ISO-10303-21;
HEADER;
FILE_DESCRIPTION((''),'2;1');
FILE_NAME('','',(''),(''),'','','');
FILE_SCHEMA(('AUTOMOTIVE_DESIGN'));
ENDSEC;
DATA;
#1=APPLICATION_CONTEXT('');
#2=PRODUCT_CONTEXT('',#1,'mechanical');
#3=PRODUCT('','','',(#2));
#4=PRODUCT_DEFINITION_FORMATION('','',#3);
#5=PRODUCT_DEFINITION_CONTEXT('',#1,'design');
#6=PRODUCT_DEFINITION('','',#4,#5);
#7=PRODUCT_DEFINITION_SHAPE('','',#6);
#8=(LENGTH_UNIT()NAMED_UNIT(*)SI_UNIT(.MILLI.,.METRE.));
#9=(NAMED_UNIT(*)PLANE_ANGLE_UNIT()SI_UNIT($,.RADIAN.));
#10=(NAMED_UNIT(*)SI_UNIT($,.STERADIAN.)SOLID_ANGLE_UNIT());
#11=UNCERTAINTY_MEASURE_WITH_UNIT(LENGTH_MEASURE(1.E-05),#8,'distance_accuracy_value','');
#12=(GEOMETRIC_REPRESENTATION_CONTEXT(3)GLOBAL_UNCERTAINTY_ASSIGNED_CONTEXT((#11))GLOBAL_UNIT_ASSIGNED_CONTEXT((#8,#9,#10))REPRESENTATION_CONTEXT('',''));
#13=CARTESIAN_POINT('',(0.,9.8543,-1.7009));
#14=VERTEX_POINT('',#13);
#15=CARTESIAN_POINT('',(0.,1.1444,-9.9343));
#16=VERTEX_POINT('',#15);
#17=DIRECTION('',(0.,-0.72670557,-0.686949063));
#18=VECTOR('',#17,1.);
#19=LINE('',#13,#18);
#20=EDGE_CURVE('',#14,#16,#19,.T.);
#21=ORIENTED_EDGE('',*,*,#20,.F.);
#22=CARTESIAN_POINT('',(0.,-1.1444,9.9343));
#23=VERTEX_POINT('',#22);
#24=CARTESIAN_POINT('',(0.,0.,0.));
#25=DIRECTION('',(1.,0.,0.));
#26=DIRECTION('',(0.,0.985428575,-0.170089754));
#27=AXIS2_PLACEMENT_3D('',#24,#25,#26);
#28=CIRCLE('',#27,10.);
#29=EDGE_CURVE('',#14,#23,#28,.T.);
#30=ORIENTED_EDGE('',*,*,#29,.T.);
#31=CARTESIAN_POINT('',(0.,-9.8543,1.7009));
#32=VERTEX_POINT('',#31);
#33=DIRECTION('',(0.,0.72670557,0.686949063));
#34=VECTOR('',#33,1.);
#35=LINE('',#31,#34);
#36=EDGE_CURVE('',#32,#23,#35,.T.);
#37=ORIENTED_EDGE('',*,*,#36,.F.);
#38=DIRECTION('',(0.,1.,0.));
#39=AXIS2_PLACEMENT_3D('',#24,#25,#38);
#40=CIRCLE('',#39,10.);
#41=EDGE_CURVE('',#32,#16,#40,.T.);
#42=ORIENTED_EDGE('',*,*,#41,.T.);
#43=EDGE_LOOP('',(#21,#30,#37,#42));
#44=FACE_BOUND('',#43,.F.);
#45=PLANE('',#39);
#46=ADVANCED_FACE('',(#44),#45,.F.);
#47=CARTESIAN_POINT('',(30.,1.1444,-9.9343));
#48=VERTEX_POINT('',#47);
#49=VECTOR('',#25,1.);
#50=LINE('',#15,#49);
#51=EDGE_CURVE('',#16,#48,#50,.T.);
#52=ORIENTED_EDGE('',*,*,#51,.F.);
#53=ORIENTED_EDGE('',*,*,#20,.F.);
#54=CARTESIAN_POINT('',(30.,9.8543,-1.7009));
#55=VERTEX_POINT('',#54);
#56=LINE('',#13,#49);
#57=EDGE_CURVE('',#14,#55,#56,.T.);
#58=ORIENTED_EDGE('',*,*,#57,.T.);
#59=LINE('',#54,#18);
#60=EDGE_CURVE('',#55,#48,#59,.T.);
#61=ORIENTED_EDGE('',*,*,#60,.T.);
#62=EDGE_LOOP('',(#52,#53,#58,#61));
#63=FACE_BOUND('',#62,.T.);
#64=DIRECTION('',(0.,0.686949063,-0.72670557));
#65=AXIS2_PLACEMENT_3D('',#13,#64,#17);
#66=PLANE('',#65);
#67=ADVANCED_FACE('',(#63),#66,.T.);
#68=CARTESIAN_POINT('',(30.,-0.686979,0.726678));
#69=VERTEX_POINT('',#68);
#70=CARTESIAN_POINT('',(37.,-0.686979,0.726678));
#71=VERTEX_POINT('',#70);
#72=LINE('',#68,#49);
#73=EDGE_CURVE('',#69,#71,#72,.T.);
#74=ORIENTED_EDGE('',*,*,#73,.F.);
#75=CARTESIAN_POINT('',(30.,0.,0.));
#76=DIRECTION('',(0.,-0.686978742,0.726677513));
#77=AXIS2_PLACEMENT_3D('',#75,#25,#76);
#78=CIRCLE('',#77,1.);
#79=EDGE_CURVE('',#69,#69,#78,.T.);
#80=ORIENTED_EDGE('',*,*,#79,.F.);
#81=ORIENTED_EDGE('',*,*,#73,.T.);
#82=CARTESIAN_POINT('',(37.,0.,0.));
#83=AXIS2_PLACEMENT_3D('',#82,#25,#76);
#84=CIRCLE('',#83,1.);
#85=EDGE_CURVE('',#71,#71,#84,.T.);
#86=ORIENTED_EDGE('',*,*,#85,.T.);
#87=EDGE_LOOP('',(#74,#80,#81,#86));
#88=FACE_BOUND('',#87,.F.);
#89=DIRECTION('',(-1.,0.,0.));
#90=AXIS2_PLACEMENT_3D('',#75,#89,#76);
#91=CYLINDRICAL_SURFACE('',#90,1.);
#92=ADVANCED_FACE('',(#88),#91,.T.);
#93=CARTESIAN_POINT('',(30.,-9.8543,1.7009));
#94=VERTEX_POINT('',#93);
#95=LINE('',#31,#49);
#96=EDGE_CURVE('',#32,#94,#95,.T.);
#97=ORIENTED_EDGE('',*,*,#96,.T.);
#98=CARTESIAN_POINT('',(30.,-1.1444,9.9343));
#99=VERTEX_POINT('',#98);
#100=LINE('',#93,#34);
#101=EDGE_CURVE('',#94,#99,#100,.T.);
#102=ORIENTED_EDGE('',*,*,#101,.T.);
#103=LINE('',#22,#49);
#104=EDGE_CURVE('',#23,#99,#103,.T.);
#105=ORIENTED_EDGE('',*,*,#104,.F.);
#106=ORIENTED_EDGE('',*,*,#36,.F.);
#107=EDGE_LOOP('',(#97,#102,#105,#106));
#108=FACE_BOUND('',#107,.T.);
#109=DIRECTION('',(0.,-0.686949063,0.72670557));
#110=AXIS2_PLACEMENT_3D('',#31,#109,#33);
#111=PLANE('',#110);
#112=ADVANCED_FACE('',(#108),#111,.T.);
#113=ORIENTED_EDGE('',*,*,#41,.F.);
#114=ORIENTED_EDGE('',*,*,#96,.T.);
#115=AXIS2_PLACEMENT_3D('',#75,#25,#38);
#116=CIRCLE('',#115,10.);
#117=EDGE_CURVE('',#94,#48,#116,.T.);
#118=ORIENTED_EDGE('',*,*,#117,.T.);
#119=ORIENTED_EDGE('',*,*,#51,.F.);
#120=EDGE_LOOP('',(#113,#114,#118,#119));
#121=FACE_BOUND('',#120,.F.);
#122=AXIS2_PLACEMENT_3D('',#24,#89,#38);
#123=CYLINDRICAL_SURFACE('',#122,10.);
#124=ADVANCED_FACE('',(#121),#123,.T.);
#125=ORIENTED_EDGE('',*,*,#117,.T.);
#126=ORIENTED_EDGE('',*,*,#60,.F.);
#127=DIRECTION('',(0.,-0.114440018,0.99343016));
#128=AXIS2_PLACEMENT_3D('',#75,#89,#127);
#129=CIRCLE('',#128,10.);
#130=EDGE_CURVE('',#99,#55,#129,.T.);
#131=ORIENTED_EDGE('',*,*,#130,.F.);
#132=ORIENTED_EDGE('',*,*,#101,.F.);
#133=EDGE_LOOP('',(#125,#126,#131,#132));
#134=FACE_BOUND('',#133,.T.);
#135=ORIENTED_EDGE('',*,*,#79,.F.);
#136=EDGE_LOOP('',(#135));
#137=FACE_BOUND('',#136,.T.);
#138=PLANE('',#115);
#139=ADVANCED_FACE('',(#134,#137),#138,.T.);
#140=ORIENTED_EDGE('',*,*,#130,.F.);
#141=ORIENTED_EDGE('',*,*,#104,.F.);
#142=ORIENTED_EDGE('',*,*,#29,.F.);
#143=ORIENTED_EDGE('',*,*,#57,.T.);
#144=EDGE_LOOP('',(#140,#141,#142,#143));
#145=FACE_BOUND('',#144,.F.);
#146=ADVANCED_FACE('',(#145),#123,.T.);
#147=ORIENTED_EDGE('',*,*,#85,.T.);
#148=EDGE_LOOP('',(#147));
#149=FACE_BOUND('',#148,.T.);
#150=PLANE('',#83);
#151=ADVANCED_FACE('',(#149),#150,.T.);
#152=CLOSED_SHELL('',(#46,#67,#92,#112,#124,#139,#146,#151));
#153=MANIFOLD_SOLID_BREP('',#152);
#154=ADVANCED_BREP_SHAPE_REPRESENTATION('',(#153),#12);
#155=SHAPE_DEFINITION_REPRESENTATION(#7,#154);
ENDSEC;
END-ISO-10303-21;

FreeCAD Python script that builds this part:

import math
import FreeCAD as App
import Part
import Sketcher

V = App.Vector
Q = App.Units.Quantity

doc = App.newDocument("Part")
body = doc.addObject("PartDesign::Body", "Body")

# Sketch on YZ plane
sketch1 = body.newObject("Sketcher::SketchObject", "Sketch")
sketch1.AttachmentSupport = (doc.getObject("YZ_Plane"), [""])
sketch1.MapMode = "FlatFace"
sketch1.addGeometry([
    Part.ArcOfCircle(Part.Circle(V(0, 0, 0), V(0, 0, 1), 10), math.radians(-9.793038), math.radians(96.571327)),
    Part.LineSegment(V(-1.1444, 9.9343, 0), V(-9.8543, 1.7009, 0)),
    Part.ArcOfCircle(Part.Circle(V(0, 0, 0), V(0, 0, 1), 10), math.radians(170.206962), math.radians(276.571327)),
    Part.LineSegment(V(1.1444, -9.9343, 0), V(9.8543, -1.7009, 0)),
], False)
sketch1.addConstraint([
    Sketcher.Constraint("Coincident", 0, 2, 1, 1),
    Sketcher.Constraint("Coincident", 1, 2, 2, 1),
    Sketcher.Constraint("Coincident", 2, 2, 3, 1),
    Sketcher.Constraint("Coincident", 3, 2, 0, 1),
    Sketcher.Constraint("Coincident", 0, 3, -1, 1),
    Sketcher.Constraint("Coincident", 2, 3, -1, 1),
    Sketcher.Constraint("Equal", 0, 2),
    Sketcher.Constraint("Parallel", 1, 3),
    Sketcher.Constraint("Equal", 1, 3),
    Sketcher.Constraint("Radius", 0, Q("10 mm")),
    Sketcher.Constraint("Angle", 1, Q("-136.611 deg")),
    Sketcher.Constraint("DistanceX", 1, 2, 0, 2, Q("8.71 mm")),
])
pad1 = body.newObject("PartDesign::Pad", "Pad")
pad1.Profile = sketch1
pad1.Length = 30

# Sketch on YZ plane
sketch2 = body.newObject("Sketcher::SketchObject", "Sketch001")
sketch2.AttachmentSupport = (doc.getObject("YZ_Plane"), [""])
sketch2.MapMode = "FlatFace"
sketch2.AttachmentOffset = App.Placement(V(0, 0, 30), App.Rotation())
sketch2.addGeometry(Part.Circle(V(0, 0, 0), V(0, 0, 1), 1), False)
sketch2.addConstraint([
    Sketcher.Constraint("Coincident", 0, 3, -1, 1),
    Sketcher.Constraint("Diameter", 0, Q("2 mm")),
])
pad2 = body.newObject("PartDesign::Pad", "Pad001")
pad2.Profile = sketch2
pad2.Length = 7

doc.recompute()
